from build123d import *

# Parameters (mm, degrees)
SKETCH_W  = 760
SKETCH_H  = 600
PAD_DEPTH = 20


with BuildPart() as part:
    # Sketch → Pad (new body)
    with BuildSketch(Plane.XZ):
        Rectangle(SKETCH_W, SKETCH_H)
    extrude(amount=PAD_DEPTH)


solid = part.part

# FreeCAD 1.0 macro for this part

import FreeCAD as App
import Part
import Sketcher


def add_polygon(sketch, points):
    """Adds a closed chain of lines whose ends are joined by coincident constraints."""
    first, n = sketch.GeometryCount, len(points)
    for a, b in zip(points, points[1:] + points[:1]):
        sketch.addGeometry(Part.LineSegment(App.Vector(*a, 0), App.Vector(*b, 0)), False)
    for i in range(n):
        sketch.addConstraint(Sketcher.Constraint("Coincident", first + i, 2, first + (i + 1) % n, 1))

doc = App.newDocument("Part")
params = doc.addObject("Spreadsheet::Sheet", "Params")
for row, (alias, value) in enumerate([
    ("sketch1_width", "760 mm"),
    ("sketch1_height", "600 mm"),
    ("pad1_length", "20 mm"),
], start=1):
    params.set(f"A{row}", alias)
    params.set(f"B{row}", "=" + value)
    params.setAlias(f"B{row}", alias)

body = doc.addObject("PartDesign::Body", "Body")

# Sketch on XZ plane
sketch1 = body.newObject("Sketcher::SketchObject", "Sketch")
sketch1.AttachmentSupport = (doc.getObject("XZ_Plane"), [""])
sketch1.MapMode = "FlatFace"
add_polygon(sketch1, [(-380, 300), (-380, -300), (380, -300), (380, 300)])  # lines 0-3
sketch1.addConstraint([
    Sketcher.Constraint("Vertical", 0),
    Sketcher.Constraint("Horizontal", 1),
    Sketcher.Constraint("Vertical", 2),
    Sketcher.Constraint("Horizontal", 3),
    Sketcher.Constraint("Symmetric", 0, 2, 2, 2, -1, 1),
    Sketcher.Constraint("DistanceX", 1, 1, 1, 2, 760.0),
    Sketcher.Constraint("DistanceY", 0, 2, 0, 1, 600.0),
])
sketch1.setExpression("Constraints[9]", "Params.sketch1_width")
sketch1.setExpression("Constraints[10]", "Params.sketch1_height")
pad1 = body.newObject("PartDesign::Pad", "Pad")
pad1.Profile = sketch1
pad1.setExpression("Length", "Params.pad1_length")

doc.recompute()
